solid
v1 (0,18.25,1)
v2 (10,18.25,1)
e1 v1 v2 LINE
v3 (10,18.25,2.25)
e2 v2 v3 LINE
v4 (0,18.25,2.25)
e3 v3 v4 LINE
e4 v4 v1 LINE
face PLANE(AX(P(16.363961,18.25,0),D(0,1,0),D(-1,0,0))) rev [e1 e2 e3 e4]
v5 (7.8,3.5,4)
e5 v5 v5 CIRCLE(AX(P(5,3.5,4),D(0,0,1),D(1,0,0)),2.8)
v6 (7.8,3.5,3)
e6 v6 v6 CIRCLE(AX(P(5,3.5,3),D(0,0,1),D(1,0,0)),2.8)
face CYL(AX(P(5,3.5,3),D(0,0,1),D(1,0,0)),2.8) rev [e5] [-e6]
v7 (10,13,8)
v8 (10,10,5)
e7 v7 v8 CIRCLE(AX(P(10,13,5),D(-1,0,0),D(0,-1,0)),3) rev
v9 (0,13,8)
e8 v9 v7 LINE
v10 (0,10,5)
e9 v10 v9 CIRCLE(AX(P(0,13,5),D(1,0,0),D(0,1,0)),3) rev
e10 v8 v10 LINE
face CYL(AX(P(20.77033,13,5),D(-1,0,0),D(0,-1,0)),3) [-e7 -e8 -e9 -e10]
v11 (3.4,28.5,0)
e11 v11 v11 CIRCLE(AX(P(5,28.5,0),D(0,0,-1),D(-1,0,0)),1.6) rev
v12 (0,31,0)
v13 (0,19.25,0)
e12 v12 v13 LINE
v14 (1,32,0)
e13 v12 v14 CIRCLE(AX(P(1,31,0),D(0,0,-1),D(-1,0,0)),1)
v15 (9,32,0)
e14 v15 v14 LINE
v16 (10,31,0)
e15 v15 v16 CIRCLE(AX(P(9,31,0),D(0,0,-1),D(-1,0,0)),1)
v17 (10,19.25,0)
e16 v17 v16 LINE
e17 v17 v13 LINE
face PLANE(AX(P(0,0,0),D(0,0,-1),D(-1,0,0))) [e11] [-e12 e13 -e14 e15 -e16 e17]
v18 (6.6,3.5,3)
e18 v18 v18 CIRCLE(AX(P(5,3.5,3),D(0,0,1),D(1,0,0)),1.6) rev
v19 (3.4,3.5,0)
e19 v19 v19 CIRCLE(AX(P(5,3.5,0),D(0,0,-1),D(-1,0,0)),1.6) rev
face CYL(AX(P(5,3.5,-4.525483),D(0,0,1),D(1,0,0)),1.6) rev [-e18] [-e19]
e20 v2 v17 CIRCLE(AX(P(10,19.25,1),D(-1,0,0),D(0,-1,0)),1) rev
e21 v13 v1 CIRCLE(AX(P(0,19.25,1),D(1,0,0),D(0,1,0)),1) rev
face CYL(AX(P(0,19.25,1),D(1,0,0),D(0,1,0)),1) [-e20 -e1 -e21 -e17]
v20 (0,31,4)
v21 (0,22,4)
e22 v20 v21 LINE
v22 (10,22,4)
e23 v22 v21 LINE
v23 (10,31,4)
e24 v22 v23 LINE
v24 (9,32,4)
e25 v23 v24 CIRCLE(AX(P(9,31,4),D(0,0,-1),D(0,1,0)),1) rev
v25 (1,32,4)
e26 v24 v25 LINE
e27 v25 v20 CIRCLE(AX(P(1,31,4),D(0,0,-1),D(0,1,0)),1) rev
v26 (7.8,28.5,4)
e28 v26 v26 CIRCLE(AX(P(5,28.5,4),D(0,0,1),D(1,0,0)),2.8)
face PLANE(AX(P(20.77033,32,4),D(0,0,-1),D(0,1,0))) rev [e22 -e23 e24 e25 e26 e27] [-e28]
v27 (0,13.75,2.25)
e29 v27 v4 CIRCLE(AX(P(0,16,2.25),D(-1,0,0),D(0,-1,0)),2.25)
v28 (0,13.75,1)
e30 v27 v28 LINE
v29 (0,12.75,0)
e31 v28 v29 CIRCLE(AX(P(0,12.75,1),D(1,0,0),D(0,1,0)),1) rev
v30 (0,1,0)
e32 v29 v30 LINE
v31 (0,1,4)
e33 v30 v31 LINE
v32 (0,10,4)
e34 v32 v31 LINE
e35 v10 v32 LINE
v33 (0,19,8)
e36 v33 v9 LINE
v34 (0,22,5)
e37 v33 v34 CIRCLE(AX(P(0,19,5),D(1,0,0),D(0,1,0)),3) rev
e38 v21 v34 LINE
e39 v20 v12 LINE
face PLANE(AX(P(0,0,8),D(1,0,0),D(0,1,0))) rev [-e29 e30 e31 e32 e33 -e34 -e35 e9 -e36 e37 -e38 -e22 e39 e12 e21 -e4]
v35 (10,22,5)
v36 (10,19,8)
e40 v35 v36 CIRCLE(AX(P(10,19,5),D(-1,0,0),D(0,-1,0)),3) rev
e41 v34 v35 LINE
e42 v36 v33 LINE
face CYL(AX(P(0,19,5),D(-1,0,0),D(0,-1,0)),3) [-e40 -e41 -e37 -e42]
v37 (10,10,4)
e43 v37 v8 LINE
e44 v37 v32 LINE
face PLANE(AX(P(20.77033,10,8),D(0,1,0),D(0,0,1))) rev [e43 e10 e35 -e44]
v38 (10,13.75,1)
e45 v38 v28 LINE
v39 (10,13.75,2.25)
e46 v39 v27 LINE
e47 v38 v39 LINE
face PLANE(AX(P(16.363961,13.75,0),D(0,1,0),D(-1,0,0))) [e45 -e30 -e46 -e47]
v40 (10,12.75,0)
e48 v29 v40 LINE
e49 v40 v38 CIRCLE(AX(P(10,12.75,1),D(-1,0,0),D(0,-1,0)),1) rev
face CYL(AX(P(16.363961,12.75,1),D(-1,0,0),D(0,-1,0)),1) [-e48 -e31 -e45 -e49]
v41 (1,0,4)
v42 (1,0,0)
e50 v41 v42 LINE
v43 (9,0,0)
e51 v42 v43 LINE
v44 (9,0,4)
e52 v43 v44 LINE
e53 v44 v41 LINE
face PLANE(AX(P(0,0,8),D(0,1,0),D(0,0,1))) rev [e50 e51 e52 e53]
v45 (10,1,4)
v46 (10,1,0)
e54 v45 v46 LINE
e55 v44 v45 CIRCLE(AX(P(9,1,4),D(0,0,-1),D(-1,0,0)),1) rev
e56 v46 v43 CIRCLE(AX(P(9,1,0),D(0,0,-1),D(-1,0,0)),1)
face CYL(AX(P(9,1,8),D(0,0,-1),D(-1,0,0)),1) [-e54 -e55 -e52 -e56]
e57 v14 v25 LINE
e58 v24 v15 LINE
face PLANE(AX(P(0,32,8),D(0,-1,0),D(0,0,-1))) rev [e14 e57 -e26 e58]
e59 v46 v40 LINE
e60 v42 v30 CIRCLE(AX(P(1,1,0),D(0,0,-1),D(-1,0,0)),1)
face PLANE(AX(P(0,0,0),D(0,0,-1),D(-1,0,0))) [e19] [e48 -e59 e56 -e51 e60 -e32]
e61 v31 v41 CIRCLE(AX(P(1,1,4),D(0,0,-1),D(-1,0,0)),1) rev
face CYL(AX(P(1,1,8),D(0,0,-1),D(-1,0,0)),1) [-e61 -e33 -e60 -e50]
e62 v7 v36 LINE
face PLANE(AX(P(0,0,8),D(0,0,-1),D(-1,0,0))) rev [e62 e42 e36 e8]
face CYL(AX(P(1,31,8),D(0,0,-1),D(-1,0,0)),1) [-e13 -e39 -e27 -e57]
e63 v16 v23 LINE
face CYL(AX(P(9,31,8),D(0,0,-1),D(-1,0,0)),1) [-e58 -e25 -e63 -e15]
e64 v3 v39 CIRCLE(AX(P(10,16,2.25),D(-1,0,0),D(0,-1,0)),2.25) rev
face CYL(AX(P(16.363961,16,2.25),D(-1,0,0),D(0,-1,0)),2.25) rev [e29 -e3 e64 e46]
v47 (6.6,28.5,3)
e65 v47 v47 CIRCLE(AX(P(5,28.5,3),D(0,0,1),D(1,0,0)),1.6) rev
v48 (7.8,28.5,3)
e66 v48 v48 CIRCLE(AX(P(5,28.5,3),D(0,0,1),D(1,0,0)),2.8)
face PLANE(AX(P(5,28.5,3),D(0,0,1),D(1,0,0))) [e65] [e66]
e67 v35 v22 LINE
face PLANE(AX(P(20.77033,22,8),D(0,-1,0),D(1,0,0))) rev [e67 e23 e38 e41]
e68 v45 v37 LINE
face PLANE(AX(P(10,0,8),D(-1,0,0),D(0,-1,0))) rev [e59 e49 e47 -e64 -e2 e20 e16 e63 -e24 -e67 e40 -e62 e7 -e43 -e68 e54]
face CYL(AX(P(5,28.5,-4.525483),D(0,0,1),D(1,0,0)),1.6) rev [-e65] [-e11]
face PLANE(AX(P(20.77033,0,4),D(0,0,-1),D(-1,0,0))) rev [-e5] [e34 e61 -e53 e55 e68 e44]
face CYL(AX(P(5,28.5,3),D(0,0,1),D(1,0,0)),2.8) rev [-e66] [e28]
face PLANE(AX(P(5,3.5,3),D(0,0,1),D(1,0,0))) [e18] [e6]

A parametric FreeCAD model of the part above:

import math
import FreeCAD as App
import Part
import Sketcher
from FreeCAD import Vector


def edges_at(feature, points):
    """Names of the edges that pass closest to the given points."""
    edges = feature.Shape.Edges
    near = lambda p: min(range(len(edges)), key=lambda i: edges[i].distToShape(Part.Vertex(*p))[0])
    return sorted({f"Edge{near(p) + 1}" for p in points})

doc = App.newDocument("Part")
body = doc.addObject("PartDesign::Body", "Body")

sketch1 = doc.addObject("Sketcher::SketchObject", "Sketch")
body.addObject(sketch1)
sketch1.AttachmentSupport = (doc.XY_Plane, [""])
sketch1.MapMode = "FlatFace"
sketch1.addGeometry(Part.LineSegment(Vector(0, 32, 0), Vector(0, 0, 0)), False)
sketch1.addGeometry(Part.LineSegment(Vector(0, 0, 0), Vector(10, 0, 0)), False)
sketch1.addGeometry(Part.LineSegment(Vector(10, 0, 0), Vector(10, 32, 0)), False)
sketch1.addGeometry(Part.LineSegment(Vector(10, 32, 0), Vector(0, 32, 0)), False)
sketch1.addConstraint(Sketcher.Constraint("Coincident", 0, 2, 1, 1))
sketch1.addConstraint(Sketcher.Constraint("Coincident", 1, 2, 2, 1))
sketch1.addConstraint(Sketcher.Constraint("Coincident", 2, 2, 3, 1))
sketch1.addConstraint(Sketcher.Constraint("Coincident", 3, 2, 0, 1))
sketch1.addConstraint(Sketcher.Constraint("Vertical", 0))
sketch1.addConstraint(Sketcher.Constraint("Horizontal", 1))
sketch1.addConstraint(Sketcher.Constraint("Vertical", 2))
sketch1.addConstraint(Sketcher.Constraint("Horizontal", 3))
sketch1.addConstraint(Sketcher.Constraint("Coincident", 0, 2, -1, 1))
sketch1.addConstraint(Sketcher.Constraint("DistanceX", 1, 1, 1, 2, 10.0))
sketch1.addConstraint(Sketcher.Constraint("DistanceY", 0, 2, 0, 1, 32.0))
pad1 = doc.addObject("PartDesign::Pad", "Pad")
body.addObject(pad1)
pad1.Profile = sketch1
pad1.Length = 8

sketch2 = doc.addObject("Sketcher::SketchObject", "Sketch001")
body.addObject(sketch2)
sketch2.AttachmentSupport = (doc.XY_Plane, [""])
sketch2.MapMode = "FlatFace"
sketch2.AttachmentOffset = App.Placement(Vector(0, 0, 8), App.Rotation())
sketch2.addGeometry(Part.Circle(Vector(5, 28.5, 0), Vector(0, 0, 1), 1.6), False)
sketch2.addGeometry(Part.Circle(Vector(5, 3.5, 0), Vector(0, 0, 1), 1.6), False)
sketch2.addConstraint(Sketcher.Constraint("Equal", 0, 1))
sketch2.addConstraint(Sketcher.Constraint("Vertical", 0, 3, 1, 3))
sketch2.addConstraint(Sketcher.Constraint("Diameter", 0, 3.2))
sketch2.addConstraint(Sketcher.Constraint("DistanceX", -1, 1, 0, 3, 5.0))
sketch2.addConstraint(Sketcher.Constraint("DistanceY", 1, 3, 0, 3, 25.0))
sketch2.addConstraint(Sketcher.Constraint("DistanceY", -1, 1, 0, 3, 28.5))
pocket1 = doc.addObject("PartDesign::Pocket", "Pocket")
body.addObject(pocket1)
pocket1.Profile = sketch2
pocket1.Length = 8

sketch3 = doc.addObject("Sketcher::SketchObject", "Sketch002")
body.addObject(sketch3)
sketch3.AttachmentSupport = (doc.YZ_Plane, [""])
sketch3.MapMode = "FlatFace"
sketch3.addGeometry(Part.LineSegment(Vector(18.2, 2.2, 0), Vector(18.2, 0, 0)), False)
sketch3.addGeometry(Part.LineSegment(Vector(18.2, 0, 0), Vector(13.8, 0, 0)), False)
sketch3.addGeometry(Part.LineSegment(Vector(13.8, 0, 0), Vector(13.8, 2.2, 0)), False)
sketch3.addGeometry(Part.ArcOfCircle(Part.Circle(Vector(16, 2.2, 0), Vector(0, 0, 1), 2.2), math.radians(0), math.radians(180)), False)
sketch3.addConstraint(Sketcher.Constraint("Coincident", 0, 2, 1, 1))
sketch3.addConstraint(Sketcher.Constraint("Coincident", 1, 2, 2, 1))
sketch3.addConstraint(Sketcher.Constraint("Tangent", 2, 2, 3, 2))
sketch3.addConstraint(Sketcher.Constraint("Tangent", 3, 1, 0, 1))
sketch3.addConstraint(Sketcher.Constraint("Vertical", 0))
sketch3.addConstraint(Sketcher.Constraint("Horizontal", 1))
sketch3.addConstraint(Sketcher.Constraint("Vertical", 2))
sketch3.addConstraint(Sketcher.Constraint("PointOnObject", 0, 2, -1))
sketch3.addConstraint(Sketcher.Constraint("Radius", 3, 2.25))
sketch3.addConstraint(Sketcher.Constraint("DistanceX", -1, 1, 3, 3, 16.0))
sketch3.addConstraint(Sketcher.Constraint("DistanceY", 0, 2, 0, 1, 2.25))
pocket2 = doc.addObject("PartDesign::Pocket", "Pocket001")
body.addObject(pocket2)
pocket2.Profile = sketch3
pocket2.Length = 10
pocket2.Reversed = True
doc.recompute()

fillet = doc.addObject("PartDesign::Fillet", "Fillet")
body.addObject(fillet)
fillet.Base = (pocket2, edges_at(pocket2, [(5, 13.75, 0), (5, 18.25, 0)]))
fillet.Radius = 1

sketch4 = doc.addObject("Sketcher::SketchObject", "Sketch003")
body.addObject(sketch4)
sketch4.AttachmentSupport = (doc.YZ_Plane, [""])
sketch4.MapMode = "FlatFace"
sketch4.AttachmentOffset = App.Placement(Vector(0, 0, 10), App.Rotation())
sketch4.addGeometry(Part.LineSegment(Vector(32, 4, 0), Vector(22, 4, 0)), False)
sketch4.addGeometry(Part.LineSegment(Vector(22, 4, 0), Vector(22, 8, 0)), False)
sketch4.addGeometry(Part.LineSegment(Vector(22, 8, 0), Vector(32, 8, 0)), False)
sketch4.addGeometry(Part.LineSegment(Vector(32, 8, 0), Vector(32, 4, 0)), False)
sketch4.addGeometry(Part.LineSegment(Vector(10, 4, 0), Vector(0, 4, 0)), False)
sketch4.addGeometry(Part.LineSegment(Vector(0, 4, 0), Vector(0, 8, 0)), False)
sketch4.addGeometry(Part.LineSegment(Vector(0, 8, 0), Vector(10, 8, 0)), False)
sketch4.addGeometry(Part.LineSegment(Vector(10, 8, 0), Vector(10, 4, 0)), False)
sketch4.addConstraint(Sketcher.Constraint("Coincident", 0, 2, 1, 1))
sketch4.addConstraint(Sketcher.Constraint("Coincident", 1, 2, 2, 1))
sketch4.addConstraint(Sketcher.Constraint("Coincident", 2, 2, 3, 1))
sketch4.addConstraint(Sketcher.Constraint("Coincident", 3, 2, 0, 1))
sketch4.addConstraint(Sketcher.Constraint("Coincident", 4, 2, 5, 1))
sketch4.addConstraint(Sketcher.Constraint("Coincident", 5, 2, 6, 1))
sketch4.addConstraint(Sketcher.Constraint("Coincident", 6, 2, 7, 1))
sketch4.addConstraint(Sketcher.Constraint("Coincident", 7, 2, 4, 1))
sketch4.addConstraint(Sketcher.Constraint("Horizontal", 0))
sketch4.addConstraint(Sketcher.Constraint("Vertical", 1))
sketch4.addConstraint(Sketcher.Constraint("Horizontal", 2))
sketch4.addConstraint(Sketcher.Constraint("Vertical", 3))
sketch4.addConstraint(Sketcher.Constraint("Horizontal", 4))
sketch4.addConstraint(Sketcher.Constraint("Vertical", 5))
sketch4.addConstraint(Sketcher.Constraint("Horizontal", 6))
sketch4.addConstraint(Sketcher.Constraint("Vertical", 7))
sketch4.addConstraint(Sketcher.Constraint("PointOnObject", 4, 2, -2))
sketch4.addConstraint(Sketcher.Constraint("Horizontal", 3, 2, 4, 2))
sketch4.addConstraint(Sketcher.Constraint("Horizontal", 2, 2, 5, 2))
sketch4.addConstraint(Sketcher.Constraint("Equal", 2, 4))
sketch4.addConstraint(Sketcher.Constraint("DistanceX", 0, 2, 0, 1, 10.0))
sketch4.addConstraint(Sketcher.Constraint("DistanceY", 1, 1, 1, 2, 4.0))
sketch4.addConstraint(Sketcher.Constraint("DistanceX", -1, 1, 0, 2, 22.0))
sketch4.addConstraint(Sketcher.Constraint("DistanceY", -1, 1, 0, 2, 4.0))
pocket3 = doc.addObject("PartDesign::Pocket", "Pocket002")
body.addObject(pocket3)
pocket3.Profile = sketch4
pocket3.Length = 10
doc.recompute()

fillet2 = doc.addObject("PartDesign::Fillet", "Fillet001")
body.addObject(fillet2)
fillet2.Base = (pocket3, edges_at(pocket3, [(5, 22, 8), (5, 10, 8)]))
fillet2.Radius = 3
doc.recompute()

fillet3 = doc.addObject("PartDesign::Fillet", "Fillet002")
body.addObject(fillet3)
fillet3.Base = (fillet2, edges_at(fillet2, [
    (0, 32, 2),
    (10, 32, 2),
    (10, 0, 2),
    (0, 0, 2),
]))
fillet3.Radius = 1

sketch5 = doc.addObject("Sketcher::SketchObject", "Sketch004")
body.addObject(sketch5)
sketch5.AttachmentSupport = (doc.XY_Plane, [""])
sketch5.MapMode = "FlatFace"
sketch5.AttachmentOffset = App.Placement(Vector(0, 0, 4), App.Rotation())
sketch5.addGeometry(Part.Circle(Vector(5, 28.5, 0), Vector(0, 0, 1), 2.8), False)
sketch5.addGeometry(Part.Circle(Vector(5, 3.5, 0), Vector(0, 0, 1), 2.8), False)
sketch5.addConstraint(Sketcher.Constraint("Equal", 0, 1))
sketch5.addConstraint(Sketcher.Constraint("Vertical", 0, 3, 1, 3))
sketch5.addConstraint(Sketcher.Constraint("Diameter", 0, 5.6))
sketch5.addConstraint(Sketcher.Constraint("DistanceX", -1, 1, 0, 3, 5.0))
sketch5.addConstraint(Sketcher.Constraint("DistanceY", 1, 3, 0, 3, 25.0))
sketch5.addConstraint(Sketcher.Constraint("DistanceY", -1, 1, 0, 3, 28.5))
pocket4 = doc.addObject("PartDesign::Pocket", "Pocket003")
body.addObject(pocket4)
pocket4.Profile = sketch5
pocket4.Length = 1

doc.recompute()
